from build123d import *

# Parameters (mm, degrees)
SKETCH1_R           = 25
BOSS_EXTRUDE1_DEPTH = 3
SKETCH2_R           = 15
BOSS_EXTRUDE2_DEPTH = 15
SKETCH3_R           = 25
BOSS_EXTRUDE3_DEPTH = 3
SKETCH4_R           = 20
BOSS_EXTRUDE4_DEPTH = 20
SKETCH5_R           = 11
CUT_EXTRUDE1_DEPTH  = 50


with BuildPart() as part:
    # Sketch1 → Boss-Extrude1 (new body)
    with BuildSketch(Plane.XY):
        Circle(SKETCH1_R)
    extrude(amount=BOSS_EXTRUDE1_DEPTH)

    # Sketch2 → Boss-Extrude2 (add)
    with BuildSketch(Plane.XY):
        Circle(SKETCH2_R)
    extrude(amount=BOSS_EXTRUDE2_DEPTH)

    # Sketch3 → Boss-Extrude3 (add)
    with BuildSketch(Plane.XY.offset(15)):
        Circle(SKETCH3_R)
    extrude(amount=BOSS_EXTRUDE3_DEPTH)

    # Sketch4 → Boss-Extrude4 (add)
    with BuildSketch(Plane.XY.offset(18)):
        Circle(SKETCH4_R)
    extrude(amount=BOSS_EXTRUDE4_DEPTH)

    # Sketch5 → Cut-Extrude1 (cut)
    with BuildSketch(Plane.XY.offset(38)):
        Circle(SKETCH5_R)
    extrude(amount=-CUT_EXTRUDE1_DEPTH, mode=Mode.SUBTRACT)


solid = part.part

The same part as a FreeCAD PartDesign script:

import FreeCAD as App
import Part
import Sketcher
from FreeCAD import Vector

doc = App.newDocument("Part")
body = doc.addObject("PartDesign::Body", "Body")

# Sketch on XY plane
sketch1 = body.newObject("Sketcher::SketchObject", "Sketch")
sketch1.AttachmentSupport = (doc.getObject("XY_Plane"), [""])
sketch1.MapMode = "FlatFace"
sketch1.addGeometry(Part.Circle(Vector(0, 0, 0), Vector(0, 0, 1), 25), False)
sketch1.addConstraint([
    Sketcher.Constraint("Coincident", 0, 3, -1, 1),
    Sketcher.Constraint("Diameter", 0, 50.0),
])
pad1 = body.newObject("PartDesign::Pad", "Pad")
pad1.Profile = sketch1
pad1.Length = 3

# Sketch on XY plane
sketch2 = body.newObject("Sketcher::SketchObject", "Sketch001")
sketch2.AttachmentSupport = (doc.getObject("XY_Plane"), [""])
sketch2.MapMode = "FlatFace"
sketch2.addGeometry(Part.Circle(Vector(0, 0, 0), Vector(0, 0, 1), 15), False)
sketch2.addConstraint([
    Sketcher.Constraint("Coincident", 0, 3, -1, 1),
    Sketcher.Constraint("Diameter", 0, 30.0),
])
pad2 = body.newObject("PartDesign::Pad", "Pad001")
pad2.Profile = sketch2
pad2.Length = 15

# Sketch on XY plane
sketch3 = body.newObject("Sketcher::SketchObject", "Sketch002")
sketch3.AttachmentSupport = (doc.getObject("XY_Plane"), [""])
sketch3.MapMode = "FlatFace"
sketch3.AttachmentOffset = App.Placement(Vector(0, 0, 15), App.Rotation())
sketch3.addGeometry(Part.Circle(Vector(0, 0, 0), Vector(0, 0, 1), 25), False)
sketch3.addConstraint([
    Sketcher.Constraint("Coincident", 0, 3, -1, 1),
    Sketcher.Constraint("Diameter", 0, 50.0),
])
pad3 = body.newObject("PartDesign::Pad", "Pad002")
pad3.Profile = sketch3
pad3.Length = 3

# Sketch on XY plane
sketch4 = body.newObject("Sketcher::SketchObject", "Sketch003")
sketch4.AttachmentSupport = (doc.getObject("XY_Plane"), [""])
sketch4.MapMode = "FlatFace"
sketch4.AttachmentOffset = App.Placement(Vector(0, 0, 18), App.Rotation())
sketch4.addGeometry(Part.Circle(Vector(0, 0, 0), Vector(0, 0, 1), 20), False)
sketch4.addConstraint([
    Sketcher.Constraint("Coincident", 0, 3, -1, 1),
    Sketcher.Constraint("Diameter", 0, 40.0),
])
pad4 = body.newObject("PartDesign::Pad", "Pad003")
pad4.Profile = sketch4
pad4.Length = 20

# Sketch on XY plane
sketch5 = body.newObject("Sketcher::SketchObject", "Sketch004")
sketch5.AttachmentSupport = (doc.getObject("XY_Plane"), [""])
sketch5.MapMode = "FlatFace"
sketch5.AttachmentOffset = App.Placement(Vector(0, 0, 38), App.Rotation())
sketch5.addGeometry(Part.Circle(Vector(0, 0, 0), Vector(0, 0, 1), 11), False)
sketch5.addConstraint([
    Sketcher.Constraint("Coincident", 0, 3, -1, 1),
    Sketcher.Constraint("Diameter", 0, 22.0),
])
pocket1 = body.newObject("PartDesign::Pocket", "Pocket")
pocket1.Profile = sketch5
pocket1.Length = 50

doc.recompute()
